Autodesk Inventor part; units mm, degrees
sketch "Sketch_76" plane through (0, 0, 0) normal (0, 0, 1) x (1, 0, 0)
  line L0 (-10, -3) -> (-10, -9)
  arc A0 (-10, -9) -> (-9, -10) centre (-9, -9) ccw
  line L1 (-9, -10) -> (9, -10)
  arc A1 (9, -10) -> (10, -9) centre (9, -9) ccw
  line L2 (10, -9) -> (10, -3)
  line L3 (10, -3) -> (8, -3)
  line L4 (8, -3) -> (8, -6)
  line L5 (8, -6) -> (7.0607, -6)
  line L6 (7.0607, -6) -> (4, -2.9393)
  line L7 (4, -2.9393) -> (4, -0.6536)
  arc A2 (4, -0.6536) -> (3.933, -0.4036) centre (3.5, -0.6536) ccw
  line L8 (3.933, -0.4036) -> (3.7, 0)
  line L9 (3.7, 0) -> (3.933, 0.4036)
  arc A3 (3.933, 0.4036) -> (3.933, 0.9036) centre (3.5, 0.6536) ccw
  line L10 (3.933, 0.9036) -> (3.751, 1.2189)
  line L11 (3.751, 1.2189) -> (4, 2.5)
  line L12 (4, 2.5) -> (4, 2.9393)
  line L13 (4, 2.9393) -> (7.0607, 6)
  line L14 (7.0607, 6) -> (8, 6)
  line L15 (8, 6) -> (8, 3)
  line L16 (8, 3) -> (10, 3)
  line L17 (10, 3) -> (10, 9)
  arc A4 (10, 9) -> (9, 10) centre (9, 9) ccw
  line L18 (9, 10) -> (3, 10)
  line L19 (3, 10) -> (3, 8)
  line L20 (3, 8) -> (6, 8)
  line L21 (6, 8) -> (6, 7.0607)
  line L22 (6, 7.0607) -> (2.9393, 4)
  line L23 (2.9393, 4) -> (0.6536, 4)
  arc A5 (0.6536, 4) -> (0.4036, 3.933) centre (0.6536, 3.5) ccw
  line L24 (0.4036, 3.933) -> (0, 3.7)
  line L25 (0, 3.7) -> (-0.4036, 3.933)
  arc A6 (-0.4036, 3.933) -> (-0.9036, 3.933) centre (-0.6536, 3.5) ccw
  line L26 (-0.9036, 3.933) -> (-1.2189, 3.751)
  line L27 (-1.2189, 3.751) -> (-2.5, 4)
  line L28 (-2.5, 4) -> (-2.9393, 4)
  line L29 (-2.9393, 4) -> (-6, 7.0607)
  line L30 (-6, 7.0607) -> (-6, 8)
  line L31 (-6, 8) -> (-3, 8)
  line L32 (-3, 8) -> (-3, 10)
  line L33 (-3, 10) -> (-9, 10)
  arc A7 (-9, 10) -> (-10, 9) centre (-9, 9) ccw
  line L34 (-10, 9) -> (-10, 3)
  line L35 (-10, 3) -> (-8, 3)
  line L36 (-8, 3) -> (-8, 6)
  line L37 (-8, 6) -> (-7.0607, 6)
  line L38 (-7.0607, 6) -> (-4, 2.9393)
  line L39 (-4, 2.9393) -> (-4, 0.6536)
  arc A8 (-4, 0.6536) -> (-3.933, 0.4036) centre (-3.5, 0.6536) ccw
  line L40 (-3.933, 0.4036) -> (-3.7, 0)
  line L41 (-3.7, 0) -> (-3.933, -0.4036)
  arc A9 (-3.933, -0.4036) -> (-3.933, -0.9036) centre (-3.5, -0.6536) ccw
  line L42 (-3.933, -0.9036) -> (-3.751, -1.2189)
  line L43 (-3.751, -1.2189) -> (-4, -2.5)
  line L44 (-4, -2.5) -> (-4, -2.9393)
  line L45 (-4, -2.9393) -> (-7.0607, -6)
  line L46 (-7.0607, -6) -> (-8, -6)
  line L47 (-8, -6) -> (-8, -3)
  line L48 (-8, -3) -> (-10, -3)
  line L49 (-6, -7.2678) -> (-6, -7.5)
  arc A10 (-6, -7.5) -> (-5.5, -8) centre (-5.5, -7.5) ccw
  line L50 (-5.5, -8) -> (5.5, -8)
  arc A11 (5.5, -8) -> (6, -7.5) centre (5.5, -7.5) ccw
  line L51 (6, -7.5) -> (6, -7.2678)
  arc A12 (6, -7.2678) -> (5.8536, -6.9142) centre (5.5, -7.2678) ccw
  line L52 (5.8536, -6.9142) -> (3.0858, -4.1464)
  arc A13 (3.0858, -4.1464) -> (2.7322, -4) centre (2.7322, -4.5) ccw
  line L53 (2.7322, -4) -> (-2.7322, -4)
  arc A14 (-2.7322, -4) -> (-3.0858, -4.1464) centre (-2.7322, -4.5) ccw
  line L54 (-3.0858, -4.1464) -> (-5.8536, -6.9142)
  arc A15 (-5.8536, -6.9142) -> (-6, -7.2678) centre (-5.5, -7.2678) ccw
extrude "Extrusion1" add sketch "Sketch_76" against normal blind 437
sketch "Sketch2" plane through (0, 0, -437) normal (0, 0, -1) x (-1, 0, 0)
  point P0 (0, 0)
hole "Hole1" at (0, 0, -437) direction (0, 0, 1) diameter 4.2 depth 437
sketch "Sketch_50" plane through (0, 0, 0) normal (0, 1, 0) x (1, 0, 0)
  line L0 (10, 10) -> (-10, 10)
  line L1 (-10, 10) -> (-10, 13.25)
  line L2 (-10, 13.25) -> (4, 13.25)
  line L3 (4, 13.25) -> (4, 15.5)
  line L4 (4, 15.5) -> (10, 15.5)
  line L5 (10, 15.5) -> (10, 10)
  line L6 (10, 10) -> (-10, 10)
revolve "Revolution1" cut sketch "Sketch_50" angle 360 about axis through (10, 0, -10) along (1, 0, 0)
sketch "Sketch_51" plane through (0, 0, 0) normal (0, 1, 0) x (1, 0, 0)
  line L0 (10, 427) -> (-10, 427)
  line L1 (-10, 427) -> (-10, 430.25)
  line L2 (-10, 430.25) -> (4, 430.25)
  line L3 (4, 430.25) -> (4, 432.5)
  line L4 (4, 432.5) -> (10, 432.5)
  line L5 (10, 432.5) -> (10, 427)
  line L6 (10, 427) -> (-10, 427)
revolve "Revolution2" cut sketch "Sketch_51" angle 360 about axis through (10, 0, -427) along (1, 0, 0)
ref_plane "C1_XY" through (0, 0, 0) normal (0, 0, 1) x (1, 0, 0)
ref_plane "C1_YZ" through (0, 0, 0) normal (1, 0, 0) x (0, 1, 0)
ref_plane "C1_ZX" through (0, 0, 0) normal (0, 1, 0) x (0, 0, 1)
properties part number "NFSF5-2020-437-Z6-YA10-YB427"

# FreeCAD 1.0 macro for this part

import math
import FreeCAD as App
import Part
import Sketcher

V = App.Vector
Q = App.Units.Quantity


def add_polygon(sketch, points):
    """Adds a closed chain of lines whose ends are joined by coincident constraints."""
    first, n = sketch.GeometryCount, len(points)
    for a, b in zip(points, points[1:] + points[:1]):
        sketch.addGeometry(Part.LineSegment(App.Vector(*a, 0), App.Vector(*b, 0)), False)
    for i in range(n):
        sketch.addConstraint(Sketcher.Constraint("Coincident", first + i, 2, first + (i + 1) % n, 1))

doc = App.newDocument("Part")
body = doc.addObject("PartDesign::Body", "Body")

# Sketch on XY plane
sketch1 = body.newObject("Sketcher::SketchObject", "Sketch")
sketch1.AttachmentSupport = (doc.getObject("XY_Plane"), [""])
sketch1.MapMode = "FlatFace"
sketch1.addGeometry([
    Part.LineSegment(V(-8, -3, 0), V(-10, -3, 0)),  # 0
    Part.LineSegment(V(-10, -3, 0), V(-10, -9, 0)),  # 1
    Part.ArcOfCircle(Part.Circle(V(-9, -9, 0), V(0, 0, 1), 1), math.radians(180), math.radians(270)),  # 2
    Part.LineSegment(V(-9, -10, 0), V(9, -10, 0)),  # 3
    Part.ArcOfCircle(Part.Circle(V(9, -9, 0), V(0, 0, 1), 1), math.radians(-90), math.radians(0)),  # 4
    Part.LineSegment(V(10, -9, 0), V(10, -3, 0)),  # 5
    Part.LineSegment(V(10, -3, 0), V(8, -3, 0)),  # 6
    Part.LineSegment(V(8, -3, 0), V(8, -6, 0)),  # 7
    Part.LineSegment(V(8, -6, 0), V(7.0607, -6, 0)),  # 8
    Part.LineSegment(V(7.0607, -6, 0), V(4, -2.9393, 0)),  # 9
    Part.LineSegment(V(4, -2.9393, 0), V(4, -0.6536, 0)),  # 10
    Part.ArcOfCircle(Part.Circle(V(3.5, -0.6536, 0), V(0, 0, 1), 0.5), math.radians(0), math.radians(30.000728)),  # 11
    Part.LineSegment(V(3.933, -0.4036, 0), V(3.7, 0, 0)),  # 12
    Part.LineSegment(V(3.7, 0, 0), V(3.933, 0.4036, 0)),  # 13
    Part.ArcOfCircle(Part.Circle(V(3.5, 0.6536, 0), V(0, 0, 1), 0.499989), math.radians(-30.000728), math.radians(30.000728)),  # 14
    Part.LineSegment(V(3.933, 0.9036, 0), V(3.751, 1.2189, 0)),  # 15
    Part.LineSegment(V(3.751, 1.2189, 0), V(4, 2.5, 0)),  # 16
    Part.LineSegment(V(4, 2.5, 0), V(4, 2.9393, 0)),  # 17
    Part.LineSegment(V(4, 2.9393, 0), V(7.0607, 6, 0)),  # 18
    Part.LineSegment(V(7.0607, 6, 0), V(8, 6, 0)),  # 19
    Part.LineSegment(V(8, 6, 0), V(8, 3, 0)),  # 20
    Part.LineSegment(V(8, 3, 0), V(10, 3, 0)),  # 21
    Part.LineSegment(V(10, 3, 0), V(10, 9, 0)),  # 22
    Part.ArcOfCircle(Part.Circle(V(9, 9, 0), V(0, 0, 1), 1), math.radians(0), math.radians(90)),  # 23
    Part.LineSegment(V(9, 10, 0), V(3, 10, 0)),  # 24
    Part.LineSegment(V(3, 10, 0), V(3, 8, 0)),  # 25
    Part.LineSegment(V(3, 8, 0), V(6, 8, 0)),  # 26
    Part.LineSegment(V(6, 8, 0), V(6, 7.0607, 0)),  # 27
    Part.LineSegment(V(6, 7.0607, 0), V(2.9393, 4, 0)),  # 28
    Part.LineSegment(V(2.9393, 4, 0), V(0.6536, 4, 0)),  # 29
    Part.ArcOfCircle(Part.Circle(V(0.6536, 3.5, 0), V(0, 0, 1), 0.5), math.radians(90), math.radians(120.000728)),  # 30
    Part.LineSegment(V(0.4036, 3.933, 0), V(0, 3.7, 0)),  # 31
    Part.LineSegment(V(0, 3.7, 0), V(-0.4036, 3.933, 0)),  # 32
    Part.ArcOfCircle(Part.Circle(V(-0.6536, 3.5, 0), V(0, 0, 1), 0.499989), math.radians(59.999272), math.radians(120.000728)),  # 33
    Part.LineSegment(V(-0.9036, 3.933, 0), V(-1.2189, 3.751, 0)),  # 34
    Part.LineSegment(V(-1.2189, 3.751, 0), V(-2.5, 4, 0)),  # 35
    Part.LineSegment(V(-2.5, 4, 0), V(-2.9393, 4, 0)),  # 36
    Part.LineSegment(V(-2.9393, 4, 0), V(-6, 7.0607, 0)),  # 37
    Part.LineSegment(V(-6, 7.0607, 0), V(-6, 8, 0)),  # 38
    Part.LineSegment(V(-6, 8, 0), V(-3, 8, 0)),  # 39
    Part.LineSegment(V(-3, 8, 0), V(-3, 10, 0)),  # 40
    Part.LineSegment(V(-3, 10, 0), V(-9, 10, 0)),  # 41
    Part.ArcOfCircle(Part.Circle(V(-9, 9, 0), V(0, 0, 1), 1), math.radians(90), math.radians(180)),  # 42
    Part.LineSegment(V(-10, 9, 0), V(-10, 3, 0)),  # 43
    Part.LineSegment(V(-10, 3, 0), V(-8, 3, 0)),  # 44
    Part.LineSegment(V(-8, 3, 0), V(-8, 6, 0)),  # 45
    Part.LineSegment(V(-8, 6, 0), V(-7.0607, 6, 0)),  # 46
    Part.LineSegment(V(-7.0607, 6, 0), V(-4, 2.9393, 0)),  # 47
    Part.LineSegment(V(-4, 2.9393, 0), V(-4, 0.6536, 0)),  # 48
    Part.ArcOfCircle(Part.Circle(V(-3.5, 0.6536, 0), V(0, 0, 1), 0.5), math.radians(180), math.radians(210.000728)),  # 49
    Part.LineSegment(V(-3.933, 0.4036, 0), V(-3.7, 0, 0)),  # 50
    Part.LineSegment(V(-3.7, 0, 0), V(-3.933, -0.4036, 0)),  # 51
    Part.ArcOfCircle(Part.Circle(V(-3.5, -0.6536, 0), V(0, 0, 1), 0.499989), math.radians(149.999272), math.radians(210.000728)),  # 52
    Part.LineSegment(V(-3.933, -0.9036, 0), V(-3.751, -1.2189, 0)),  # 53
    Part.LineSegment(V(-3.751, -1.2189, 0), V(-4, -2.5, 0)),  # 54
    Part.LineSegment(V(-4, -2.5, 0), V(-4, -2.9393, 0)),  # 55
    Part.LineSegment(V(-4, -2.9393, 0), V(-7.0607, -6, 0)),  # 56
    Part.LineSegment(V(-7.0607, -6, 0), V(-8, -6, 0)),  # 57
    Part.LineSegment(V(-8, -6, 0), V(-8, -3, 0)),  # 58
    Part.LineSegment(V(-6, -7.5, 0), V(-6, -7.2678, 0)),  # 59
    Part.ArcOfCircle(Part.Circle(V(-5.5, -7.2678, 0), V(0, 0, 1), 0.500066), math.radians(135), math.radians(180)),  # 60
    Part.LineSegment(V(-5.8536, -6.9142, 0), V(-3.0858, -4.1464, 0)),  # 61
    Part.ArcOfCircle(Part.Circle(V(-2.7322, -4.5, 0), V(0, 0, 1), 0.5), math.radians(90), math.radians(135)),  # 62
    Part.LineSegment(V(-2.7322, -4, 0), V(2.7322, -4, 0)),  # 63
    Part.ArcOfCircle(Part.Circle(V(2.7322, -4.5, 0), V(0, 0, 1), 0.500066), math.radians(45), math.radians(90)),  # 64
    Part.LineSegment(V(3.0858, -4.1464, 0), V(5.8536, -6.9142, 0)),  # 65
    Part.ArcOfCircle(Part.Circle(V(5.5, -7.2678, 0), V(0, 0, 1), 0.5), math.radians(0), math.radians(45)),  # 66
    Part.LineSegment(V(6, -7.2678, 0), V(6, -7.5, 0)),  # 67
    Part.ArcOfCircle(Part.Circle(V(5.5, -7.5, 0), V(0, 0, 1), 0.5), math.radians(-90), math.radians(0)),  # 68
    Part.LineSegment(V(5.5, -8, 0), V(-5.5, -8, 0)),  # 69
    Part.ArcOfCircle(Part.Circle(V(-5.5, -7.5, 0), V(0, 0, 1), 0.5), math.radians(180), math.radians(270)),  # 70
], False)
sketch1.addConstraint([
    Sketcher.Constraint("Coincident", 0, 2, 1, 1),
    Sketcher.Constraint("Tangent", 1, 2, 2, 1),
    Sketcher.Constraint("Tangent", 2, 2, 3, 1),
    Sketcher.Constraint("Tangent", 3, 2, 4, 1),
    Sketcher.Constraint("Tangent", 4, 2, 5, 1),
    Sketcher.Constraint("Coincident", 5, 2, 6, 1),
    Sketcher.Constraint("Coincident", 6, 2, 7, 1),
    Sketcher.Constraint("Coincident", 7, 2, 8, 1),
    Sketcher.Constraint("Coincident", 8, 2, 9, 1),
    Sketcher.Constraint("Coincident", 9, 2, 10, 1),
    Sketcher.Constraint("Tangent", 10, 2, 11, 1),
    Sketcher.Constraint("Tangent", 11, 2, 12, 1),
    Sketcher.Constraint("Coincident", 12, 2, 13, 1),
    Sketcher.Constraint("Tangent", 13, 2, 14, 1),
    Sketcher.Constraint("Tangent", 14, 2, 15, 1),
    Sketcher.Constraint("Coincident", 15, 2, 16, 1),
    Sketcher.Constraint("Coincident", 16, 2, 17, 1),
    Sketcher.Constraint("Coincident", 17, 2, 18, 1),
    Sketcher.Constraint("Coincident", 18, 2, 19, 1),
    Sketcher.Constraint("Coincident", 19, 2, 20, 1),
    Sketcher.Constraint("Coincident", 20, 2, 21, 1),
    Sketcher.Constraint("Coincident", 21, 2, 22, 1),
    Sketcher.Constraint("Tangent", 22, 2, 23, 1),
    Sketcher.Constraint("Tangent", 23, 2, 24, 1),
    Sketcher.Constraint("Coincident", 24, 2, 25, 1),
    Sketcher.Constraint("Coincident", 25, 2, 26, 1),
    Sketcher.Constraint("Coincident", 26, 2, 27, 1),
    Sketcher.Constraint("Coincident", 27, 2, 28, 1),
    Sketcher.Constraint("Coincident", 28, 2, 29, 1),
    Sketcher.Constraint("Tangent", 29, 2, 30, 1),
    Sketcher.Constraint("Tangent", 30, 2, 31, 1),
    Sketcher.Constraint("Coincident", 31, 2, 32, 1),
    Sketcher.Constraint("Tangent", 32, 2, 33, 1),
    Sketcher.Constraint("Tangent", 33, 2, 34, 1),
    Sketcher.Constraint("Coincident", 34, 2, 35, 1),
    Sketcher.Constraint("Coincident", 35, 2, 36, 1),
    Sketcher.Constraint("Coincident", 36, 2, 37, 1),
    Sketcher.Constraint("Coincident", 37, 2, 38, 1),
    Sketcher.Constraint("Coincident", 38, 2, 39, 1),
    Sketcher.Constraint("Coincident", 39, 2, 40, 1),
    Sketcher.Constraint("Coincident", 40, 2, 41, 1),
    Sketcher.Constraint("Tangent", 41, 2, 42, 1),
    Sketcher.Constraint("Tangent", 42, 2, 43, 1),
    Sketcher.Constraint("Coincident", 43, 2, 44, 1),
    Sketcher.Constraint("Coincident", 44, 2, 45, 1),
    Sketcher.Constraint("Coincident", 45, 2, 46, 1),
    Sketcher.Constraint("Coincident", 46, 2, 47, 1),
    Sketcher.Constraint("Coincident", 47, 2, 48, 1),
    Sketcher.Constraint("Tangent", 48, 2, 49, 1),
    Sketcher.Constraint("Tangent", 49, 2, 50, 1),
    Sketcher.Constraint("Coincident", 50, 2, 51, 1),
    Sketcher.Constraint("Tangent", 51, 2, 52, 1),
    Sketcher.Constraint("Tangent", 52, 2, 53, 1),
    Sketcher.Constraint("Coincident", 53, 2, 54, 1),
    Sketcher.Constraint("Coincident", 54, 2, 55, 1),
    Sketcher.Constraint("Coincident", 55, 2, 56, 1),
    Sketcher.Constraint("Coincident", 56, 2, 57, 1),
    Sketcher.Constraint("Coincident", 57, 2, 58, 1),
    Sketcher.Constraint("Coincident", 58, 2, 0, 1),
    Sketcher.Constraint("Tangent", 59, 2, 60, 2),
    Sketcher.Constraint("Tangent", 60, 1, 61, 1),
    Sketcher.Constraint("Tangent", 61, 2, 62, 2),
    Sketcher.Constraint("Tangent", 62, 1, 63, 1),
    Sketcher.Constraint("Tangent", 63, 2, 64, 2),
    Sketcher.Constraint("Tangent", 64, 1, 65, 1),
    Sketcher.Constraint("Tangent", 65, 2, 66, 2),
    Sketcher.Constraint("Tangent", 66, 1, 67, 1),
    Sketcher.Constraint("Tangent", 67, 2, 68, 2),
    Sketcher.Constraint("Tangent", 68, 1, 69, 1),
    Sketcher.Constraint("Tangent", 69, 2, 70, 2),
    Sketcher.Constraint("Tangent", 70, 1, 59, 1),
    Sketcher.Constraint("Horizontal", 0),
    Sketcher.Constraint("Vertical", 1),
    Sketcher.Constraint("Horizontal", 3),
    Sketcher.Constraint("Vertical", 5),
    Sketcher.Constraint("Horizontal", 6),
    Sketcher.Constraint("Vertical", 7),
    Sketcher.Constraint("Horizontal", 8),
    Sketcher.Constraint("Vertical", 10),
    Sketcher.Constraint("Vertical", 17),
    Sketcher.Constraint("Horizontal", 19),
    Sketcher.Constraint("Vertical", 20),
    Sketcher.Constraint("Horizontal", 21),
    Sketcher.Constraint("Vertical", 22),
    Sketcher.Constraint("Horizontal", 24),
    Sketcher.Constraint("Vertical", 25),
    Sketcher.Constraint("Horizontal", 26),
    Sketcher.Constraint("Vertical", 27),
    Sketcher.Constraint("Horizontal", 29),
    Sketcher.Constraint("Horizontal", 36),
    Sketcher.Constraint("Vertical", 38),
    Sketcher.Constraint("Horizontal", 39),
    Sketcher.Constraint("Vertical", 40),
    Sketcher.Constraint("Horizontal", 41),
    Sketcher.Constraint("Vertical", 43),
    Sketcher.Constraint("Horizontal", 44),
    Sketcher.Constraint("Vertical", 45),
    Sketcher.Constraint("Horizontal", 46),
    Sketcher.Constraint("Vertical", 48),
    Sketcher.Constraint("Vertical", 55),
    Sketcher.Constraint("Horizontal", 57),
    Sketcher.Constraint("Vertical", 58),
    Sketcher.Constraint("Vertical", 59),
    Sketcher.Constraint("Horizontal", 63),
    Sketcher.Constraint("Vertical", 67),
    Sketcher.Constraint("Horizontal", 69),
    Sketcher.Constraint("Equal", 2, 4),
    Sketcher.Constraint("Equal", 11, 14),
    Sketcher.Constraint("Equal", 4, 23),
    Sketcher.Constraint("Equal", 14, 30),
    Sketcher.Constraint("Equal", 30, 33),
    Sketcher.Constraint("Equal", 23, 42),
    Sketcher.Constraint("Equal", 33, 49),
    Sketcher.Constraint("Equal", 49, 52),
    Sketcher.Constraint("Equal", 52, 60),
    Sketcher.Constraint("Equal", 60, 62),
    Sketcher.Constraint("Equal", 62, 64),
    Sketcher.Constraint("Equal", 64, 66),
    Sketcher.Constraint("Equal", 66, 68),
    Sketcher.Constraint("Equal", 68, 70),
    Sketcher.Constraint("Symmetric", 2, 3, 23, 3, -1, 1),
    Sketcher.Constraint("Symmetric", 4, 3, 42, 3, -1, 1),
    Sketcher.Constraint("Symmetric", 11, 3, 49, 3, -1, 1),
    Sketcher.Constraint("Symmetric", 14, 3, 52, 3, -1, 1),
    Sketcher.Constraint("Symmetric", 6, 2, 44, 2, -1, 1),
    Sketcher.Constraint("Symmetric", 8, 2, 46, 2, -1, 1),
    Sketcher.Constraint("Symmetric", 12, 2, 50, 2, -1, 1),
    Sketcher.Constraint("Symmetric", 15, 2, 53, 2, -1, 1),
    Sketcher.Constraint("Symmetric", 16, 2, 54, 2, -1, 1),
    Sketcher.Constraint("Symmetric", 18, 2, 56, 2, -1, 1),
    Sketcher.Constraint("Symmetric", 20, 2, 58, 2, -1, 1),
    Sketcher.Constraint("Symmetric", 30, 3, 33, 3, -2),
    Sketcher.Constraint("Symmetric", 14, 3, 49, 3, -2),
    Sketcher.Constraint("Symmetric", 60, 3, 66, 3, -2),
    Sketcher.Constraint("Symmetric", 0, 2, 5, 2, -2),
    Sketcher.Constraint("Symmetric", 28, 2, 36, 2, -2),
    Sketcher.Constraint("Symmetric", 27, 2, 37, 2, -2),
    Sketcher.Constraint("Symmetric", 25, 2, 39, 2, -2),
    Sketcher.Constraint("Symmetric", 19, 2, 45, 2, -2),
    Sketcher.Constraint("Symmetric", 17, 2, 47, 2, -2),
    Sketcher.Constraint("PointOnObject", 12, 2, -1),
    Sketcher.Constraint("PointOnObject", 31, 2, -2),
    Sketcher.Constraint("Parallel", 12, 15),
    Sketcher.Constraint("Perpendicular", 9, 18),
    Sketcher.Constraint("Parallel", 18, 28),
    Sketcher.Constraint("Perpendicular", 15, 31),
    Sketcher.Constraint("Parallel", 31, 34),
    Sketcher.Constraint("Perpendicular", 16, 35),
    Sketcher.Constraint("Perpendicular", 28, 37),
    Sketcher.Constraint("Parallel", 37, 47),
    Sketcher.Constraint("Perpendicular", 47, 56),
    Sketcher.Constraint("Parallel", 56, 61),
    Sketcher.Constraint("Perpendicular", 61, 65),
    Sketcher.Constraint("Vertical", 38, 2, 59, 2),
    Sketcher.Constraint("Equal", 41, 1),
    Sketcher.Constraint("Equal", 39, 7),
    Sketcher.Constraint("Equal", 29, 10),
    Sketcher.Constraint("Equal", 36, 17),
    Sketcher.Constraint("Equal", 44, 25),
    Sketcher.Constraint("Equal", 57, 27),
    Sketcher.Constraint("Equal", 18, 28),
    Sketcher.Constraint("Equal", 13, 31),
    Sketcher.Constraint("Radius", 2, 1.0),
    Sketcher.Constraint("Radius", 11, 0.5),
    Sketcher.Constraint("DistanceX", 0, 2, 0, 1, 2.0),
    Sketcher.Constraint("DistanceX", 3, 1, 3, 2, 18.0),
    Sketcher.Constraint("DistanceX", 24, 2, 24, 1, 6.0),
    Sketcher.Constraint("DistanceX", 26, 1, 26, 2, 3.0),
    Sketcher.Constraint("Angle", 16, Q("79.001 deg")),
    Sketcher.Constraint("DistanceX", -1, 1, 9, 2, 4.0),
    Sketcher.Constraint("DistanceY", 62, 1, -1, 1, 4.0),
    Sketcher.Constraint("DistanceY", 68, 1, -1, 1, 8.0),
    Sketcher.Constraint("DistanceX", -1, 1, 12, 2, 3.7),
    Sketcher.Constraint("DistanceY", -1, 1, 16, 2, 2.5),
    Sketcher.Constraint("Distance", 12, 0.466),
    Sketcher.Constraint("DistanceX", 8, 2, 8, 1, 0.9393),
    Sketcher.Constraint("DistanceX", 63, 1, 63, 2, 5.4644),
])
pad1 = body.newObject("PartDesign::Pad", "Pad")
pad1.Profile = sketch1
pad1.Length = 437
pad1.Reversed = True

# Sketch on XY plane
sketch2 = body.newObject("Sketcher::SketchObject", "Sketch001")
sketch2.AttachmentSupport = (doc.getObject("XY_Plane"), [""])
sketch2.MapMode = "FlatFace"
sketch2.AttachmentOffset = App.Placement(V(0, 0, -437), App.Rotation())
sketch2.addGeometry(Part.Circle(V(0, 0, 0), V(0, 0, 1), 2.1), False)
sketch2.addConstraint([
    Sketcher.Constraint("Coincident", 0, 3, -1, 1),
    Sketcher.Constraint("Diameter", 0, 4.2),
])
doc.recompute()
hole = body.newObject("PartDesign::Hole", "Hole")
hole.Profile = sketch2
hole.ThreadType = "None"
hole.Diameter = 4.2
hole.DepthType = "Dimension"
hole.Depth = 437
hole.DrillPoint = "Flat"
hole.Reversed = True

# Sketch on XZ plane
sketch3 = body.newObject("Sketcher::SketchObject", "Sketch002")
sketch3.AttachmentSupport = (doc.getObject("XZ_Plane"), [""])
sketch3.MapMode = "FlatFace"
add_polygon(sketch3, [(-10, -10), (10, -10), (10, -15.5), (4, -15.5), (4, -13.25), (-10, -13.25)])  # lines 0-5
sketch3.addGeometry(Part.LineSegment(V(-10, -10, 0), V(10, -10, 0)), True)  # axis
sketch3.addConstraint([
    Sketcher.Constraint("Horizontal", 0),
    Sketcher.Constraint("Vertical", 1),
    Sketcher.Constraint("Horizontal", 2),
    Sketcher.Constraint("Vertical", 3),
    Sketcher.Constraint("Horizontal", 4),
    Sketcher.Constraint("Vertical", 5),
    Sketcher.Constraint("Horizontal", 6),
    Sketcher.Constraint("Coincident", 6, 1, 5, 2),
    Sketcher.Constraint("Vertical", 1, 2, 6, 2),
    Sketcher.Constraint("DistanceX", 0, 1, 0, 2, 20.0),
    Sketcher.Constraint("DistanceX", 2, 2, 2, 1, 6.0),
    Sketcher.Constraint("DistanceY", 1, 2, 1, 1, 5.5),
    Sketcher.Constraint("DistanceX", -1, 1, 0, 2, 10.0),
    Sketcher.Constraint("DistanceY", 0, 2, -1, 1, 10.0),
    Sketcher.Constraint("DistanceY", 3, 1, 3, 2, 2.25),
])
groove = body.newObject("PartDesign::Groove", "Groove")
groove.Profile = sketch3
groove.ReferenceAxis = (sketch3, ["Axis0"])
groove.Angle = 360

# Sketch on XZ plane
sketch4 = body.newObject("Sketcher::SketchObject", "Sketch003")
sketch4.AttachmentSupport = (doc.getObject("XZ_Plane"), [""])
sketch4.MapMode = "FlatFace"
add_polygon(sketch4, [(-10, -427), (10, -427), (10, -432.5), (4, -432.5), (4, -430.25), (-10, -430.25)])  # lines 0-5
sketch4.addGeometry(Part.LineSegment(V(-10, -427, 0), V(10, -427, 0)), True)  # axis
sketch4.addConstraint([
    Sketcher.Constraint("Horizontal", 0),
    Sketcher.Constraint("Vertical", 1),
    Sketcher.Constraint("Horizontal", 2),
    Sketcher.Constraint("Vertical", 3),
    Sketcher.Constraint("Horizontal", 4),
    Sketcher.Constraint("Vertical", 5),
    Sketcher.Constraint("Horizontal", 6),
    Sketcher.Constraint("Coincident", 6, 1, 5, 2),
    Sketcher.Constraint("Vertical", 1, 2, 6, 2),
    Sketcher.Constraint("DistanceX", 0, 1, 0, 2, 20.0),
    Sketcher.Constraint("DistanceX", 2, 2, 2, 1, 6.0),
    Sketcher.Constraint("DistanceY", 1, 2, 1, 1, 5.5),
    Sketcher.Constraint("DistanceX", -1, 1, 0, 2, 10.0),
    Sketcher.Constraint("DistanceY", 0, 2, -1, 1, 427.0),
    Sketcher.Constraint("DistanceY", 3, 1, 3, 2, 2.25),
])
groove2 = body.newObject("PartDesign::Groove", "Groove001")
groove2.Profile = sketch4
groove2.ReferenceAxis = (sketch4, ["Axis0"])
groove2.Angle = 360

doc.recompute()
